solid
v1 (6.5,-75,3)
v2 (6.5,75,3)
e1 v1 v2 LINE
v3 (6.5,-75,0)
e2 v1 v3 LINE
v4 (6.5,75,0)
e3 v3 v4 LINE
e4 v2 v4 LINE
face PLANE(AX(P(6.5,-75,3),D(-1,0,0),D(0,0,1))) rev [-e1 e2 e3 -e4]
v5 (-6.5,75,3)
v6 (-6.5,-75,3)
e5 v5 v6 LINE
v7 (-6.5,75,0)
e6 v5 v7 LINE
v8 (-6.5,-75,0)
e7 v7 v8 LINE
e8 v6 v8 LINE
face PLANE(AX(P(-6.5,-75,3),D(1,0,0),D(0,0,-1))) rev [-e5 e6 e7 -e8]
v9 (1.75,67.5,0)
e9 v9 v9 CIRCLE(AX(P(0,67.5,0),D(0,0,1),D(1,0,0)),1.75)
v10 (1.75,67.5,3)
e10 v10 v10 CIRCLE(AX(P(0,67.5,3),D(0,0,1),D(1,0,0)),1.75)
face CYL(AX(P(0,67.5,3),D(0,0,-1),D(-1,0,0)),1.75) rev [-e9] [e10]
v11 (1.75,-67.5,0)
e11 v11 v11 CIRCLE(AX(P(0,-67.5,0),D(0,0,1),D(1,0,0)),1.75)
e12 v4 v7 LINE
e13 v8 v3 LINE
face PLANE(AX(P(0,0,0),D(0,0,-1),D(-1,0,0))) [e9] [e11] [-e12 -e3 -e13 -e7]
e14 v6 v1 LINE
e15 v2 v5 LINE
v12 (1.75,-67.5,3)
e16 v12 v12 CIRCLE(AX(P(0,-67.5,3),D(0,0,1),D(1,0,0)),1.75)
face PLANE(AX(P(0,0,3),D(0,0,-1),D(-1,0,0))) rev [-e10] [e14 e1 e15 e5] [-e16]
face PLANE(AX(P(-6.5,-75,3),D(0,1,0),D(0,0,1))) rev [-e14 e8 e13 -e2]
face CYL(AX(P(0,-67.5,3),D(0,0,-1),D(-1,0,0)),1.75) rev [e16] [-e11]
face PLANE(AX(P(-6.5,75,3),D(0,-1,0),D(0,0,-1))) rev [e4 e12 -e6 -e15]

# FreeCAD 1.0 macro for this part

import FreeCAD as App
import Part
import Sketcher
from FreeCAD import Vector

doc = App.newDocument("Part")
body = doc.addObject("PartDesign::Body", "Body")

# Sketch on XY plane
sketch1 = body.newObject("Sketcher::SketchObject", "Sketch")
sketch1.AttachmentSupport = (doc.getObject("XY_Plane"), [""])
sketch1.MapMode = "FlatFace"
sketch1.addGeometry(Part.LineSegment(Vector(-6.5, 75, 0), Vector(-6.5, -75, 0)), False)
sketch1.addGeometry(Part.LineSegment(Vector(-6.5, -75, 0), Vector(6.5, -75, 0)), False)
sketch1.addGeometry(Part.LineSegment(Vector(6.5, -75, 0), Vector(6.5, 75, 0)), False)
sketch1.addGeometry(Part.LineSegment(Vector(6.5, 75, 0), Vector(-6.5, 75, 0)), False)
sketch1.addGeometry(Part.Circle(Vector(0, -67.5, 0), Vector(0, 0, 1), 1.8), False)
sketch1.addGeometry(Part.Circle(Vector(0, 67.5, 0), Vector(0, 0, 1), 1.8), False)
sketch1.addConstraint(Sketcher.Constraint("Coincident", 0, 2, 1, 1))
sketch1.addConstraint(Sketcher.Constraint("Coincident", 1, 2, 2, 1))
sketch1.addConstraint(Sketcher.Constraint("Coincident", 2, 2, 3, 1))
sketch1.addConstraint(Sketcher.Constraint("Coincident", 3, 2, 0, 1))
sketch1.addConstraint(Sketcher.Constraint("Vertical", 0))
sketch1.addConstraint(Sketcher.Constraint("Horizontal", 1))
sketch1.addConstraint(Sketcher.Constraint("Vertical", 2))
sketch1.addConstraint(Sketcher.Constraint("Horizontal", 3))
sketch1.addConstraint(Sketcher.Constraint("Equal", 4, 5))
sketch1.addConstraint(Sketcher.Constraint("Symmetric", 4, 3, 5, 3, -1, 1))
sketch1.addConstraint(Sketcher.Constraint("Symmetric", 0, 2, 2, 2, -1, 1))
sketch1.addConstraint(Sketcher.Constraint("PointOnObject", 4, 3, -2))
sketch1.addConstraint(Sketcher.Constraint("Diameter", 4, 3.5))
sketch1.addConstraint(Sketcher.Constraint("DistanceX", 1, 1, 1, 2, 13.0))
sketch1.addConstraint(Sketcher.Constraint("DistanceY", 0, 2, 0, 1, 150.0))
sketch1.addConstraint(Sketcher.Constraint("DistanceY", 4, 3, 5, 3, 135.0))
pad1 = body.newObject("PartDesign::Pad", "Pad")
pad1.Profile = sketch1
pad1.Length = 3

doc.recompute()
